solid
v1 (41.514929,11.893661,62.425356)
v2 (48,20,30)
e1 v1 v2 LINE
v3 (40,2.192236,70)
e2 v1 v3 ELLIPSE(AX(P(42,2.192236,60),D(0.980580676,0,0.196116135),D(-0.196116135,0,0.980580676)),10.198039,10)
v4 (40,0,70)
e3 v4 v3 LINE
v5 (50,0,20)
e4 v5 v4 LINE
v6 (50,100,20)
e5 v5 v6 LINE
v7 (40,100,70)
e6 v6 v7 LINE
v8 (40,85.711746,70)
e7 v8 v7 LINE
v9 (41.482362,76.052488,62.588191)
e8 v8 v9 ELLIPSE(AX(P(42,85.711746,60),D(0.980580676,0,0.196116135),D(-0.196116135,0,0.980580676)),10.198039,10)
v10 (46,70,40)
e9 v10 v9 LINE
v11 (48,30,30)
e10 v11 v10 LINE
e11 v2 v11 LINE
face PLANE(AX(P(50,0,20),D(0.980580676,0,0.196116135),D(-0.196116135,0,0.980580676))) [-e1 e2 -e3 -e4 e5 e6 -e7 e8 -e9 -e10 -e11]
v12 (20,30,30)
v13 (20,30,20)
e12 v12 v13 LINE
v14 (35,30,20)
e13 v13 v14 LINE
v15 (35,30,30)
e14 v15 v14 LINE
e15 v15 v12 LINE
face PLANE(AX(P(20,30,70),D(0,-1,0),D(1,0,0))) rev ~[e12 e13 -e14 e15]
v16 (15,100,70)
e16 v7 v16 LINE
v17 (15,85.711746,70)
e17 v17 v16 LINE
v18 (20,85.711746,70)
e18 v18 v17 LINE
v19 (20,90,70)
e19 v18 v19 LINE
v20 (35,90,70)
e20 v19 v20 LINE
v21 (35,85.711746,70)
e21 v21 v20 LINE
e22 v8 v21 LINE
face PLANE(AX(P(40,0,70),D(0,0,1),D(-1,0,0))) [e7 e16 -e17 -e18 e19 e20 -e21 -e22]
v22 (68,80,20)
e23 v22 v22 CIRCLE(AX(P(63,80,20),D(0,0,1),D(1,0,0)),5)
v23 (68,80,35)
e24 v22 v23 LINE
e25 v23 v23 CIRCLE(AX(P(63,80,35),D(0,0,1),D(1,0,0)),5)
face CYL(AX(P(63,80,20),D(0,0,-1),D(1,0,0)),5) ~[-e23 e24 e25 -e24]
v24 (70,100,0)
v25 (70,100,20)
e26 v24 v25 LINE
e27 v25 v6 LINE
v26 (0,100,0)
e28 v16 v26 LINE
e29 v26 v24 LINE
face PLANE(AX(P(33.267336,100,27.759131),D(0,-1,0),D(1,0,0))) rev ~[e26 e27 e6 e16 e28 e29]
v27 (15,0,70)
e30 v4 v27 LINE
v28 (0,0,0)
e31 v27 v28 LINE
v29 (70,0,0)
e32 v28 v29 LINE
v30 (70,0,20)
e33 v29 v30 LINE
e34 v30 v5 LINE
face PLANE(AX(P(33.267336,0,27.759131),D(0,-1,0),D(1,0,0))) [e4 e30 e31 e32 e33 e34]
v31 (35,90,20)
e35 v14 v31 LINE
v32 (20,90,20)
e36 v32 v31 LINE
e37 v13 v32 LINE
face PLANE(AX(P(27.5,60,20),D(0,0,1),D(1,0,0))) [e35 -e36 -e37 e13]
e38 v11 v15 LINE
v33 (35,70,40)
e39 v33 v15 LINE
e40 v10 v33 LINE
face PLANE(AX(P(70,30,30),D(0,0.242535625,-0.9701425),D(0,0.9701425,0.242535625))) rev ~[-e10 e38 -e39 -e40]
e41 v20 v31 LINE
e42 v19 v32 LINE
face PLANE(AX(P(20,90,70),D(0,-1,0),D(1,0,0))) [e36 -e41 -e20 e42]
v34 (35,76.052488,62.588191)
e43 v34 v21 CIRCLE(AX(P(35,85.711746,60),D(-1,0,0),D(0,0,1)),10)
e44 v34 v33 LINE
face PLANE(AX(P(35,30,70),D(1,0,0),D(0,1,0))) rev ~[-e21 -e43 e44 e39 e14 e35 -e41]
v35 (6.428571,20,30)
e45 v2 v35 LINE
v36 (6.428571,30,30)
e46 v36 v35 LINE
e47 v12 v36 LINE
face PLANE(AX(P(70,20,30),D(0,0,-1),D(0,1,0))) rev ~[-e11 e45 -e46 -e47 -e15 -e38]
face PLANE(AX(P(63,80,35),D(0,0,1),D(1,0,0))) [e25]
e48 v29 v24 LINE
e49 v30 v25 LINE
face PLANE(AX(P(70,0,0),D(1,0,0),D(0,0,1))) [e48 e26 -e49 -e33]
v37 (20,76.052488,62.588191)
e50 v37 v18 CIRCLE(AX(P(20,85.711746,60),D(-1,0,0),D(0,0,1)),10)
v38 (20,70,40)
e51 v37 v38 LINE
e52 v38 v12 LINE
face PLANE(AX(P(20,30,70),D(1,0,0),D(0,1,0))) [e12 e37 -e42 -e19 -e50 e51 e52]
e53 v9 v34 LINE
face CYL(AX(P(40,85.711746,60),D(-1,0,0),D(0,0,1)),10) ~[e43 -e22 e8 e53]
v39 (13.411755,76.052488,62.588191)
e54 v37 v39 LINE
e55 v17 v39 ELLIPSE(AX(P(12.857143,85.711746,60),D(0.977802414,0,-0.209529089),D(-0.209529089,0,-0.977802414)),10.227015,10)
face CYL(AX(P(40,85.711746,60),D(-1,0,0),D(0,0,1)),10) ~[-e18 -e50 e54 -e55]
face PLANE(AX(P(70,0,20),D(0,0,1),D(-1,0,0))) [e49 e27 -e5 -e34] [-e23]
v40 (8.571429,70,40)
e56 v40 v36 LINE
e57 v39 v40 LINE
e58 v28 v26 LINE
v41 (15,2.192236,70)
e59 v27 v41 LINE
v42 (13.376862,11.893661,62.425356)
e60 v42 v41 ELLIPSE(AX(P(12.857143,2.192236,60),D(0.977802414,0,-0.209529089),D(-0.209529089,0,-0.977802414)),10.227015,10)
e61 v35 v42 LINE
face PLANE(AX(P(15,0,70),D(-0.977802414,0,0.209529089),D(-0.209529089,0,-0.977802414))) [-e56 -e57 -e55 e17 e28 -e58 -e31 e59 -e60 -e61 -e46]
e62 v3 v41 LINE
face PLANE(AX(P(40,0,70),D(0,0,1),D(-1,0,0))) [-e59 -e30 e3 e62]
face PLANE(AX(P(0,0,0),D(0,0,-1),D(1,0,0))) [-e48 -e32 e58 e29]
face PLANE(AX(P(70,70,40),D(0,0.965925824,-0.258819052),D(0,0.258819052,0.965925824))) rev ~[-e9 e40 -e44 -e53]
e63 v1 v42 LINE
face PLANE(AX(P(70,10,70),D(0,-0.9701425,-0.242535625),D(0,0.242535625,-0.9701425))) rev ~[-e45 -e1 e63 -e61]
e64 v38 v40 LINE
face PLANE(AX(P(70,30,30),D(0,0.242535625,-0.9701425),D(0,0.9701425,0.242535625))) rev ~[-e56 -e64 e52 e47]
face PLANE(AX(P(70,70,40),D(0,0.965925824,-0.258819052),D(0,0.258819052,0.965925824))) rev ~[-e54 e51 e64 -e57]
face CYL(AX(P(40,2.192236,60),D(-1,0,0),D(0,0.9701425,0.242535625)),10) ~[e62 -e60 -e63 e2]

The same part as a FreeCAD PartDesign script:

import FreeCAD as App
import Part
import Sketcher
Q = App.Units.Quantity


def edges_at(feature, points):
    """Names of the edges that pass closest to the given points."""
    edges = feature.Shape.Edges
    near = lambda p: min(range(len(edges)), key=lambda i: edges[i].distToShape(Part.Vertex(*p))[0])
    return sorted({f"Edge{near(p) + 1}" for p in points})

doc = App.newDocument("Part")
body = doc.addObject("PartDesign::Body", "Body")

sketch1 = body.newObject("Sketcher::SketchObject", "Sketch")
sketch1.AttachmentSupport = (doc.getObject("XZ_Plane"), [""])
sketch1.MapMode = "FlatFace"
sketch1.addGeometry([
    Part.LineSegment(App.Vector(15, 70, 0), App.Vector(0, 0, 0)),
    Part.LineSegment(App.Vector(0, 0, 0), App.Vector(70, 0, 0)),
    Part.LineSegment(App.Vector(70, 0, 0), App.Vector(70, 20, 0)),
    Part.LineSegment(App.Vector(70, 20, 0), App.Vector(50, 20, 0)),
    Part.LineSegment(App.Vector(50, 20, 0), App.Vector(40, 70, 0)),
    Part.LineSegment(App.Vector(40, 70, 0), App.Vector(15, 70, 0)),
], False)
sketch1.addConstraint([
    Sketcher.Constraint("Coincident", 0, 2, 1, 1),
    Sketcher.Constraint("Coincident", 1, 2, 2, 1),
    Sketcher.Constraint("Coincident", 2, 2, 3, 1),
    Sketcher.Constraint("Coincident", 3, 2, 4, 1),
    Sketcher.Constraint("Coincident", 4, 2, 5, 1),
    Sketcher.Constraint("Coincident", 5, 2, 0, 1),
    Sketcher.Constraint("Horizontal", 1),
    Sketcher.Constraint("Vertical", 2),
    Sketcher.Constraint("Horizontal", 3),
    Sketcher.Constraint("Horizontal", 5),
    Sketcher.Constraint("Coincident", 0, 2, -1, 1),
    Sketcher.Constraint("Equal", 3, 2),
    Sketcher.Constraint("DistanceX", 1, 1, 1, 2, 70.0),
    Sketcher.Constraint("DistanceX", 3, 2, 3, 1, 20.0),
    Sketcher.Constraint("DistanceX", 5, 2, 5, 1, 25.0),
    Sketcher.Constraint("DistanceX", -1, 1, 4, 2, 40.0),
    Sketcher.Constraint("DistanceY", -1, 1, 4, 2, 70.0),
])
pad1 = body.newObject("PartDesign::Pad", "Pad")
pad1.Profile = sketch1
pad1.Length = 100
pad1.Reversed = True

sketch2 = body.newObject("Sketcher::SketchObject", "Sketch001")
sketch2.AttachmentSupport = (doc.getObject("YZ_Plane"), [""])
sketch2.MapMode = "FlatFace"
sketch2.AttachmentOffset = App.Placement(App.Vector(0, 0, 70), App.Rotation())
sketch2.addGeometry([
    Part.LineSegment(App.Vector(78.038476, 70, 0), App.Vector(10, 70, 0)),
    Part.LineSegment(App.Vector(10, 70, 0), App.Vector(20, 30, 0)),
    Part.LineSegment(App.Vector(20, 30, 0), App.Vector(30, 30, 0)),
    Part.LineSegment(App.Vector(30, 30, 0), App.Vector(70, 40, 0)),
    Part.LineSegment(App.Vector(70, 40, 0), App.Vector(78.038476, 70, 0)),
], False)
sketch2.addConstraint([
    Sketcher.Constraint("Coincident", 0, 2, 1, 1),
    Sketcher.Constraint("Coincident", 1, 2, 2, 1),
    Sketcher.Constraint("Coincident", 2, 2, 3, 1),
    Sketcher.Constraint("Coincident", 3, 2, 4, 1),
    Sketcher.Constraint("Coincident", 4, 2, 0, 1),
    Sketcher.Constraint("Horizontal", 0),
    Sketcher.Constraint("Horizontal", 2),
    Sketcher.Constraint("Perpendicular", 1, 3),
    Sketcher.Constraint("Equal", 1, 3),
    Sketcher.Constraint("DistanceX", 2, 1, 2, 2, 10.0),
    Sketcher.Constraint("Angle", 4, Q("75 deg")),
    Sketcher.Constraint("DistanceX", -1, 1, 0, 2, 10.0),
    Sketcher.Constraint("DistanceY", -1, 1, 0, 2, 70.0),
    Sketcher.Constraint("DistanceX", -1, 1, 1, 2, 20.0),
    Sketcher.Constraint("DistanceY", -1, 1, 1, 2, 30.0),
])
pocket1 = body.newObject("PartDesign::Pocket", "Pocket")
pocket1.Profile = sketch2
pocket1.Type = "ThroughAll"
doc.recompute()

fillet = body.newObject("PartDesign::Fillet", "Fillet")
fillet.Base = (pocket1, edges_at(pocket1, [(27.5, 10, 70), (27.5, 78.038, 70)]))
fillet.Radius = 10

sketch3 = body.newObject("Sketcher::SketchObject", "Sketch002")
sketch3.AttachmentSupport = (doc.getObject("XY_Plane"), [""])
sketch3.MapMode = "FlatFace"
sketch3.AttachmentOffset = App.Placement(App.Vector(0, 0, 70), App.Rotation())
sketch3.addGeometry([
    Part.LineSegment(App.Vector(20, 90, 0), App.Vector(20, 30, 0)),
    Part.LineSegment(App.Vector(20, 30, 0), App.Vector(35, 30, 0)),
    Part.LineSegment(App.Vector(35, 30, 0), App.Vector(35, 90, 0)),
    Part.LineSegment(App.Vector(35, 90, 0), App.Vector(20, 90, 0)),
], False)
sketch3.addConstraint([
    Sketcher.Constraint("Coincident", 0, 2, 1, 1),
    Sketcher.Constraint("Coincident", 1, 2, 2, 1),
    Sketcher.Constraint("Coincident", 2, 2, 3, 1),
    Sketcher.Constraint("Coincident", 3, 2, 0, 1),
    Sketcher.Constraint("Vertical", 0),
    Sketcher.Constraint("Horizontal", 1),
    Sketcher.Constraint("Vertical", 2),
    Sketcher.Constraint("Horizontal", 3),
    Sketcher.Constraint("DistanceX", 1, 1, 1, 2, 15.0),
    Sketcher.Constraint("DistanceY", 0, 2, 0, 1, 60.0),
    Sketcher.Constraint("DistanceX", -1, 1, 0, 2, 20.0),
    Sketcher.Constraint("DistanceY", -1, 1, 0, 2, 30.0),
])
pocket2 = body.newObject("PartDesign::Pocket", "Pocket001")
pocket2.Profile = sketch3
pocket2.Length = 50

sketch4 = body.newObject("Sketcher::SketchObject", "Sketch003")
sketch4.AttachmentSupport = (doc.getObject("XY_Plane"), [""])
sketch4.MapMode = "FlatFace"
sketch4.AttachmentOffset = App.Placement(App.Vector(0, 0, 20), App.Rotation())
sketch4.addGeometry(Part.Circle(App.Vector(63, 80, 0), App.Vector(0, 0, 1), 5), False)
sketch4.addConstraint([
    Sketcher.Constraint("Diameter", 0, 10.0),
    Sketcher.Constraint("DistanceX", -1, 1, 0, 3, 63.0),
    Sketcher.Constraint("DistanceY", -1, 1, 0, 3, 80.0),
])
pad2 = body.newObject("PartDesign::Pad", "Pad001")
pad2.Profile = sketch4
pad2.Length = 15

doc.recompute()
